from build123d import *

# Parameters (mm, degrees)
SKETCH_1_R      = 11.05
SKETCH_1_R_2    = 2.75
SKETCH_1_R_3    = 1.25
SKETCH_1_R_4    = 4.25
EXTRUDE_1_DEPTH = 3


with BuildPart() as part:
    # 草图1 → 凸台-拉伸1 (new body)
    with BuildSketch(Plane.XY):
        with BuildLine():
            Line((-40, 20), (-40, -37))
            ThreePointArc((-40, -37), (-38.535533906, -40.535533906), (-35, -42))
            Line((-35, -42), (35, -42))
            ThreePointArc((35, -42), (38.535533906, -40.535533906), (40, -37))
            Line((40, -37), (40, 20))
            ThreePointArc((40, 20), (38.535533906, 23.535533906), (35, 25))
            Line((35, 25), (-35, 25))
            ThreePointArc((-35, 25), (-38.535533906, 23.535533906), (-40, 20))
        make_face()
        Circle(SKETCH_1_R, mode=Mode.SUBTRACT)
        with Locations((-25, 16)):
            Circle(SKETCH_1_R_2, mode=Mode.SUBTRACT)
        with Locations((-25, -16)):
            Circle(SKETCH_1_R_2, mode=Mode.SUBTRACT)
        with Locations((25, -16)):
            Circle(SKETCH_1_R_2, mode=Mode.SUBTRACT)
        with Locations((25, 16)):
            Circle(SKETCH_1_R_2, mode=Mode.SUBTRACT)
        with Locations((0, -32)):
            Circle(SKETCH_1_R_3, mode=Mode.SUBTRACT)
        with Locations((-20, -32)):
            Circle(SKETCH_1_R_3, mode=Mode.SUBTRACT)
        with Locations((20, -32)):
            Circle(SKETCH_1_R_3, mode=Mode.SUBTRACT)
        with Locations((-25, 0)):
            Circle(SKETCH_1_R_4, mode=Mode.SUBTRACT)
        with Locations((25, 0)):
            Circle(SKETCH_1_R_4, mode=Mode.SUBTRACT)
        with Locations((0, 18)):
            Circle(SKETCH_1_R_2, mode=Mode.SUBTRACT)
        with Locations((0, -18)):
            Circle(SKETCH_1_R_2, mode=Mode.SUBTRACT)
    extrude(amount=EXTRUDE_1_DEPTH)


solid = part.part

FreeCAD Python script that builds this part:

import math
import FreeCAD as App
import Part
import Sketcher

doc = App.newDocument("Part")
body = doc.addObject("PartDesign::Body", "Body")

# Sketch on XY plane
sketch1 = doc.addObject("Sketcher::SketchObject", "Sketch")
body.addObject(sketch1)
sketch1.AttachmentSupport = (doc.XY_Plane, [""])
sketch1.MapMode = "FlatFace"
sketch1.addGeometry(Part.LineSegment(App.Vector(-40, 20, 0), App.Vector(-40, -37, 0)), False)
sketch1.addGeometry(Part.ArcOfCircle(Part.Circle(App.Vector(-35, -37, 0), App.Vector(0, 0, 1), 5), math.radians(180), math.radians(270)), False)
sketch1.addGeometry(Part.LineSegment(App.Vector(-35, -42, 0), App.Vector(35, -42, 0)), False)
sketch1.addGeometry(Part.ArcOfCircle(Part.Circle(App.Vector(35, -37, 0), App.Vector(0, 0, 1), 5), math.radians(-90), math.radians(0)), False)
sketch1.addGeometry(Part.LineSegment(App.Vector(40, -37, 0), App.Vector(40, 20, 0)), False)
sketch1.addGeometry(Part.ArcOfCircle(Part.Circle(App.Vector(35, 20, 0), App.Vector(0, 0, 1), 5), math.radians(0), math.radians(90)), False)
sketch1.addGeometry(Part.LineSegment(App.Vector(35, 25, 0), App.Vector(-35, 25, 0)), False)
sketch1.addGeometry(Part.ArcOfCircle(Part.Circle(App.Vector(-35, 20, 0), App.Vector(0, 0, 1), 5), math.radians(90), math.radians(180)), False)
sketch1.addGeometry(Part.Circle(App.Vector(-20, -32, 0), App.Vector(0, 0, 1), 1.2), False)
sketch1.addGeometry(Part.Circle(App.Vector(-25, -16, 0), App.Vector(0, 0, 1), 2.8), False)
sketch1.addGeometry(Part.Circle(App.Vector(0, -32, 0), App.Vector(0, 0, 1), 1.2), False)
sketch1.addGeometry(Part.Circle(App.Vector(20, -32, 0), App.Vector(0, 0, 1), 1.2), False)
sketch1.addGeometry(Part.Circle(App.Vector(0, -18, 0), App.Vector(0, 0, 1), 2.8), False)
sketch1.addGeometry(Part.Circle(App.Vector(25, -16, 0), App.Vector(0, 0, 1), 2.8), False)
sketch1.addGeometry(Part.Circle(App.Vector(-25, 0, 0), App.Vector(0, 0, 1), 4.2), False)
sketch1.addGeometry(Part.Circle(App.Vector(-25, 16, 0), App.Vector(0, 0, 1), 2.8), False)
sketch1.addGeometry(Part.Circle(App.Vector(0, 0, 0), App.Vector(0, 0, 1), 11.1), False)
sketch1.addGeometry(Part.Circle(App.Vector(25, 0, 0), App.Vector(0, 0, 1), 4.2), False)
sketch1.addGeometry(Part.Circle(App.Vector(0, 18, 0), App.Vector(0, 0, 1), 2.8), False)
sketch1.addGeometry(Part.Circle(App.Vector(25, 16, 0), App.Vector(0, 0, 1), 2.8), False)
sketch1.addConstraint(Sketcher.Constraint("Tangent", 0, 2, 1, 1))
sketch1.addConstraint(Sketcher.Constraint("Tangent", 1, 2, 2, 1))
sketch1.addConstraint(Sketcher.Constraint("Tangent", 2, 2, 3, 1))
sketch1.addConstraint(Sketcher.Constraint("Tangent", 3, 2, 4, 1))
sketch1.addConstraint(Sketcher.Constraint("Tangent", 4, 2, 5, 1))
sketch1.addConstraint(Sketcher.Constraint("Tangent", 5, 2, 6, 1))
sketch1.addConstraint(Sketcher.Constraint("Tangent", 6, 2, 7, 1))
sketch1.addConstraint(Sketcher.Constraint("Tangent", 7, 2, 0, 1))
sketch1.addConstraint(Sketcher.Constraint("Vertical", 0))
sketch1.addConstraint(Sketcher.Constraint("Horizontal", 2))
sketch1.addConstraint(Sketcher.Constraint("Vertical", 4))
sketch1.addConstraint(Sketcher.Constraint("Horizontal", 6))
sketch1.addConstraint(Sketcher.Constraint("Coincident", 16, 3, -1, 1))
sketch1.addConstraint(Sketcher.Constraint("Equal", 1, 3))
sketch1.addConstraint(Sketcher.Constraint("Equal", 3, 5))
sketch1.addConstraint(Sketcher.Constraint("Equal", 5, 7))
sketch1.addConstraint(Sketcher.Constraint("Equal", 8, 10))
sketch1.addConstraint(Sketcher.Constraint("Equal", 10, 11))
sketch1.addConstraint(Sketcher.Constraint("Equal", 9, 12))
sketch1.addConstraint(Sketcher.Constraint("Equal", 12, 13))
sketch1.addConstraint(Sketcher.Constraint("Equal", 13, 15))
sketch1.addConstraint(Sketcher.Constraint("Equal", 14, 17))
sketch1.addConstraint(Sketcher.Constraint("Equal", 15, 18))
sketch1.addConstraint(Sketcher.Constraint("Equal", 18, 19))
sketch1.addConstraint(Sketcher.Constraint("Symmetric", 13, 3, 15, 3, -1, 1))
sketch1.addConstraint(Sketcher.Constraint("Symmetric", 14, 3, 17, 3, -1, 1))
sketch1.addConstraint(Sketcher.Constraint("Symmetric", 12, 3, 18, 3, -1, 1))
sketch1.addConstraint(Sketcher.Constraint("Symmetric", 9, 3, 19, 3, -1, 1))
sketch1.addConstraint(Sketcher.Constraint("Symmetric", 8, 3, 11, 3, -2))
sketch1.addConstraint(Sketcher.Constraint("Symmetric", 9, 3, 13, 3, -2))
sketch1.addConstraint(Sketcher.Constraint("PointOnObject", 10, 3, -2))
sketch1.addConstraint(Sketcher.Constraint("PointOnObject", 12, 3, -2))
sketch1.addConstraint(Sketcher.Constraint("PointOnObject", 14, 3, -1))
sketch1.addConstraint(Sketcher.Constraint("Horizontal", 8, 3, 10, 3))
sketch1.addConstraint(Sketcher.Constraint("Vertical", 9, 3, 14, 3))
sketch1.addConstraint(Sketcher.Constraint("Radius", 1, 5.0))
sketch1.addConstraint(Sketcher.Constraint("Diameter", 8, 2.5))
sketch1.addConstraint(Sketcher.Constraint("Diameter", 9, 5.5))
sketch1.addConstraint(Sketcher.Constraint("Diameter", 14, 8.5))
sketch1.addConstraint(Sketcher.Constraint("Diameter", 16, 22.1))
sketch1.addConstraint(Sketcher.Constraint("DistanceX", 2, 1, 2, 2, 70.0))
sketch1.addConstraint(Sketcher.Constraint("DistanceY", 0, 2, 0, 1, 57.0))
sketch1.addConstraint(Sketcher.Constraint("DistanceX", 1, 3, -1, 1, 35.0))
sketch1.addConstraint(Sketcher.Constraint("DistanceY", 1, 3, -1, 1, 37.0))
sketch1.addConstraint(Sketcher.Constraint("DistanceX", 8, 3, -1, 1, 20.0))
sketch1.addConstraint(Sketcher.Constraint("DistanceY", 8, 3, -1, 1, 32.0))
sketch1.addConstraint(Sketcher.Constraint("DistanceX", 9, 3, -1, 1, 25.0))
sketch1.addConstraint(Sketcher.Constraint("DistanceY", 9, 3, -1, 1, 16.0))
sketch1.addConstraint(Sketcher.Constraint("DistanceY", 12, 3, -1, 1, 18.0))
pad1 = doc.addObject("PartDesign::Pad", "Pad")
body.addObject(pad1)
pad1.Profile = sketch1
pad1.Length = 3

doc.recompute()
